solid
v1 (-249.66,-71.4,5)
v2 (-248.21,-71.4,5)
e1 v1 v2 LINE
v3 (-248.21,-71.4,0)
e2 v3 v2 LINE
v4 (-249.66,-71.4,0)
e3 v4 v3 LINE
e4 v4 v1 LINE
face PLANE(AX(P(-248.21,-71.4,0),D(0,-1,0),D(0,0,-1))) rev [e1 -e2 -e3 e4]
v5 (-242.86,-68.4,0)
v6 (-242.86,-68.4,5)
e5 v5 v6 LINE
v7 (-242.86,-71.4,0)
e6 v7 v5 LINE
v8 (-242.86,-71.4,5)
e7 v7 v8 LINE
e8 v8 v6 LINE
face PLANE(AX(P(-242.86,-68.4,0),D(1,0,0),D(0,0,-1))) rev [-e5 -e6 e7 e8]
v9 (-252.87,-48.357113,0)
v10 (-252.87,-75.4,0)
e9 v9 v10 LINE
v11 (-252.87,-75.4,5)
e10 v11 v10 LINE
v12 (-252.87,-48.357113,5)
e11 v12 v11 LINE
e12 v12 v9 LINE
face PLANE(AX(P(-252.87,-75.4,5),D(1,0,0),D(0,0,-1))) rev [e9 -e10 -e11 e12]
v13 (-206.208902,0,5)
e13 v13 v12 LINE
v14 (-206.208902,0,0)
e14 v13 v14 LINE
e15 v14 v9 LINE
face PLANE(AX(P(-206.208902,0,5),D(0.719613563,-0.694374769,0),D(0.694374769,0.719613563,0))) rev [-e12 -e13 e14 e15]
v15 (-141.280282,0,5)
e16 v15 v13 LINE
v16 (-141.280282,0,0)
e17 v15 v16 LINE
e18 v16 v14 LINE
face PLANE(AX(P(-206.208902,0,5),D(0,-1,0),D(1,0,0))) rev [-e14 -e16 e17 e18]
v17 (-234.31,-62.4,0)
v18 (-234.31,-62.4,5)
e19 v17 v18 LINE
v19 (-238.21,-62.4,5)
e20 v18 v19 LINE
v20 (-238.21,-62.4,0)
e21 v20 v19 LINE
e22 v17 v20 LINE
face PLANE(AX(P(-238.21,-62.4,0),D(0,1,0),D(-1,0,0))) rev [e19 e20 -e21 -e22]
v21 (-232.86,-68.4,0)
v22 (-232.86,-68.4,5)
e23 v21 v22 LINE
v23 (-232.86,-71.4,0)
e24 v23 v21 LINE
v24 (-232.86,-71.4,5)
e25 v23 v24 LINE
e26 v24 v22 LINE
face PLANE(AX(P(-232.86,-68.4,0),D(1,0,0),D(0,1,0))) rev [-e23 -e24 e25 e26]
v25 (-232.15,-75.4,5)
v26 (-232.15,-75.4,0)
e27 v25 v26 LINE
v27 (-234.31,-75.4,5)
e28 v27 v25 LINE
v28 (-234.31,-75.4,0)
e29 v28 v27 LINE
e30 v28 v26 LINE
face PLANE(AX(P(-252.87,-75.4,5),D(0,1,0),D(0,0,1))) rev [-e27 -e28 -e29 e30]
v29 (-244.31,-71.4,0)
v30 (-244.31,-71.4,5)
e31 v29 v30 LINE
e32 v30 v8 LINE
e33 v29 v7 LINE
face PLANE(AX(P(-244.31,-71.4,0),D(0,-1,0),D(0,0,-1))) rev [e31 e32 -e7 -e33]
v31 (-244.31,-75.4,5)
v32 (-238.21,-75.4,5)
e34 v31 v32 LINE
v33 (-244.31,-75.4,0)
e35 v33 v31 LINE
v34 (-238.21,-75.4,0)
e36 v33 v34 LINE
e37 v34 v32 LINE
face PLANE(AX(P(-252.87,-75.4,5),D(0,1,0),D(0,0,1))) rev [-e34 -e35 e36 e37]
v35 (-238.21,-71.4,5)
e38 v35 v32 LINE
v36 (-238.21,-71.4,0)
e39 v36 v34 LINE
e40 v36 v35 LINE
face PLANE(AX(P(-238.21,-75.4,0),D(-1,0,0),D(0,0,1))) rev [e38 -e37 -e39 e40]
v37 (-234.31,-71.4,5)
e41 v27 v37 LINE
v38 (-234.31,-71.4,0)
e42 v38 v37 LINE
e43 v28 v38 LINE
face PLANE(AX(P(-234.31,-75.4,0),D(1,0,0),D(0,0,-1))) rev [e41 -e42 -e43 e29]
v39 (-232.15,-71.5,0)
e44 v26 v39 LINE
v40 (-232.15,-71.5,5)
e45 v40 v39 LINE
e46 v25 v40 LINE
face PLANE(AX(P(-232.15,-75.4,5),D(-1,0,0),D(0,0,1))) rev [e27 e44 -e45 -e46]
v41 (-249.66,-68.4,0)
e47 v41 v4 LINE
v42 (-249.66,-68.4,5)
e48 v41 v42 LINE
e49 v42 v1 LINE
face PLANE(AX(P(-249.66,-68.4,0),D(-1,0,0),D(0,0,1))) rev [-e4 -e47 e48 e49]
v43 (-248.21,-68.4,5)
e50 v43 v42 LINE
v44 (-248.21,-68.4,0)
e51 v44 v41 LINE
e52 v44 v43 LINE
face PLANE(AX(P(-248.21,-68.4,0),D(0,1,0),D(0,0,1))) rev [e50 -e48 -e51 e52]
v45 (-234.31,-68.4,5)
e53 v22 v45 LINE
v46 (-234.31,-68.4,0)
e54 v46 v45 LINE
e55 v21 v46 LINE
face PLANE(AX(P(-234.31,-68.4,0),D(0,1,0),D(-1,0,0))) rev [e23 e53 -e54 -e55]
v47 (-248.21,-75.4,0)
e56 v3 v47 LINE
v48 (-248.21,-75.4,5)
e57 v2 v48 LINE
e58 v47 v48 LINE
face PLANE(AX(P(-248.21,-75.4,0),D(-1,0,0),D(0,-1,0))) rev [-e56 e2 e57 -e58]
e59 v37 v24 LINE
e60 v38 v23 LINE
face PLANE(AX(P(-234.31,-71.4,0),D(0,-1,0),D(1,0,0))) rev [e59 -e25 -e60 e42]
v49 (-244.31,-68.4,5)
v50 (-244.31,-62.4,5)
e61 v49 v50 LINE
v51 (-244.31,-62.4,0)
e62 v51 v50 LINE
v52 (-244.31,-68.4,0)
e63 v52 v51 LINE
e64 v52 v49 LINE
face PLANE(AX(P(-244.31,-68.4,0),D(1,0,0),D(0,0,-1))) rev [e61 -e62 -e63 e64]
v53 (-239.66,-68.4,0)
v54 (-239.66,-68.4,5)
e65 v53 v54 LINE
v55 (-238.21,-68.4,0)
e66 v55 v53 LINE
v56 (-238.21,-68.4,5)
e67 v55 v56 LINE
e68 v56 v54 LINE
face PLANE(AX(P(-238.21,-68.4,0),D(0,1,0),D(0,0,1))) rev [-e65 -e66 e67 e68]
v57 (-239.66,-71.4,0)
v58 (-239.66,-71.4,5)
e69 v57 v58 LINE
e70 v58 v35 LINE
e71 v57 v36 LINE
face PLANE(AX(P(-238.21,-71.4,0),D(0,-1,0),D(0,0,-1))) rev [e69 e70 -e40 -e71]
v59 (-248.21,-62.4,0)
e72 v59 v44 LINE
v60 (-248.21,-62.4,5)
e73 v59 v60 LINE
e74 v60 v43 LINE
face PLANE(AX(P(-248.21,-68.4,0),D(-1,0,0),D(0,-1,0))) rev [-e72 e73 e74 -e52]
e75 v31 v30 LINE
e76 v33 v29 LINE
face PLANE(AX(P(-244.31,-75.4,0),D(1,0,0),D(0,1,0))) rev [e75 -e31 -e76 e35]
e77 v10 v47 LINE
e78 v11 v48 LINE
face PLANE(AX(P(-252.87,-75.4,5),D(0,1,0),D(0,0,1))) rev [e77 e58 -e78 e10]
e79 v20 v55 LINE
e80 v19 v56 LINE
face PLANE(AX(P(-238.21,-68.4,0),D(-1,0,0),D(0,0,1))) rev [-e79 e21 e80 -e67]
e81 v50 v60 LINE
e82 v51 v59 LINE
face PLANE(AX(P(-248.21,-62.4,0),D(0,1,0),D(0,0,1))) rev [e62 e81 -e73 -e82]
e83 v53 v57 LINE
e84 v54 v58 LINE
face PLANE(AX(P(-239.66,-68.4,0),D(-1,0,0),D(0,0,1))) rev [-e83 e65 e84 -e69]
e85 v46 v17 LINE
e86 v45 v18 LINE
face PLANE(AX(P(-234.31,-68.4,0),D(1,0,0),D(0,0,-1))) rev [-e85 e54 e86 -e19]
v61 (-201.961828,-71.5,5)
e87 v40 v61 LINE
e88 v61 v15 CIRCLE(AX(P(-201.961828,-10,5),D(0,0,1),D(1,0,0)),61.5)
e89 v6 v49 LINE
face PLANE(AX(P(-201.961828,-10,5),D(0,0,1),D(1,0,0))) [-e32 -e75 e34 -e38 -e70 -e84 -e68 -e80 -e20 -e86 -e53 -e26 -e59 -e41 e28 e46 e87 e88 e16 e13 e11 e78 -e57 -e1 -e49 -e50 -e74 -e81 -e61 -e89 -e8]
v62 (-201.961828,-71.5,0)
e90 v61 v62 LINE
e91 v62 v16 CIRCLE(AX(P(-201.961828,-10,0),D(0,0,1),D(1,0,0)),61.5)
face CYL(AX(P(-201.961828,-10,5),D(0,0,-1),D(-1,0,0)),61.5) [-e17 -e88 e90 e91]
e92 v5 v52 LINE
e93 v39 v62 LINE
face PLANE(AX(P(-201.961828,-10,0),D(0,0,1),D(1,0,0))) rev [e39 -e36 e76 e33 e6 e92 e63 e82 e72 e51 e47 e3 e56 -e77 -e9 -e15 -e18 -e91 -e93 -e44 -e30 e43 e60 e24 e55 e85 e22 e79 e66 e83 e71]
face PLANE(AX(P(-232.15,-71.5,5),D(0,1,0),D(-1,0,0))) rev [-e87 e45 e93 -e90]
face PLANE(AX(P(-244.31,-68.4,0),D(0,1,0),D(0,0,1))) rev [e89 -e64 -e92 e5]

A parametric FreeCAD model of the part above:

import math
import FreeCAD as App
import Part
import Sketcher
from FreeCAD import Vector


def add_polygon(sketch, points):
    """Adds a closed chain of lines whose ends are joined by coincident constraints."""
    first, n = sketch.GeometryCount, len(points)
    for a, b in zip(points, points[1:] + points[:1]):
        sketch.addGeometry(Part.LineSegment(App.Vector(*a, 0), App.Vector(*b, 0)), False)
    for i in range(n):
        sketch.addConstraint(Sketcher.Constraint("Coincident", first + i, 2, first + (i + 1) % n, 1))

doc = App.newDocument("Part")
body = doc.addObject("PartDesign::Body", "Body")

# Sketch on XY plane
sketch1 = body.newObject("Sketcher::SketchObject", "Sketch")
sketch1.AttachmentSupport = (doc.getObject("XY_Plane"), [""])
sketch1.MapMode = "FlatFace"
sketch1.addGeometry([
    Part.LineSegment(Vector(-252.9, -75.4, 0), Vector(-232.2, -75.4, 0)),  # 0
    Part.LineSegment(Vector(-232.2, -75.4, 0), Vector(-232.2, -71.5, 0)),  # 1
    Part.LineSegment(Vector(-232.2, -71.5, 0), Vector(-202, -71.5, 0)),  # 2
    Part.ArcOfCircle(Part.Circle(Vector(-202, -10, 0), Vector(0, 0, 1), 61.5), math.radians(-90), math.radians(9)),  # 3
    Part.LineSegment(Vector(-141.3, 0, 0), Vector(-206.2, 0, 0)),  # 4
    Part.LineSegment(Vector(-206.2, 0, 0), Vector(-252.9, -48.4, 0)),  # 5
    Part.LineSegment(Vector(-252.9, -48.4, 0), Vector(-252.9, -75.4, 0)),  # 6
], False)
sketch1.addConstraint([
    Sketcher.Constraint("Coincident", 0, 2, 1, 1),
    Sketcher.Constraint("Coincident", 1, 2, 2, 1),
    Sketcher.Constraint("Tangent", 2, 2, 3, 1),
    Sketcher.Constraint("Coincident", 3, 2, 4, 1),
    Sketcher.Constraint("Coincident", 4, 2, 5, 1),
    Sketcher.Constraint("Coincident", 5, 2, 6, 1),
    Sketcher.Constraint("Coincident", 6, 2, 0, 1),
    Sketcher.Constraint("Horizontal", 0),
    Sketcher.Constraint("Vertical", 1),
    Sketcher.Constraint("Horizontal", 2),
    Sketcher.Constraint("Horizontal", 4),
    Sketcher.Constraint("Vertical", 6),
    Sketcher.Constraint("PointOnObject", 3, 2, -1),
    Sketcher.Constraint("Radius", 3, 61.5),
    Sketcher.Constraint("DistanceY", 1, 1, 1, 2, 3.9),
    Sketcher.Constraint("DistanceY", 3, 3, -1, 1, 10.0),
    Sketcher.Constraint("DistanceX", 0, 1, 0, 2, 20.72),
    Sketcher.Constraint("DistanceX", 0, 2, -1, 1, 232.15),
    Sketcher.Constraint("DistanceX", 4, 2, 4, 1, 64.92862),
    Sketcher.Constraint("DistanceX", 4, 2, -1, 1, 206.208902),
    Sketcher.Constraint("DistanceY", 6, 2, 6, 1, 27.042887),
])
pad1 = body.newObject("PartDesign::Pad", "Pad")
pad1.Profile = sketch1
pad1.Length = 5

# Sketch on XY plane
sketch2 = body.newObject("Sketcher::SketchObject", "Sketch001")
sketch2.AttachmentSupport = (doc.getObject("XY_Plane"), [""])
sketch2.MapMode = "FlatFace"
sketch2.AttachmentOffset = App.Placement(Vector(0, 0, 5), App.Rotation())
add_polygon(sketch2, [(-248.2, -75.4), (-244.3, -75.4), (-244.3, -71.4), (-242.9, -71.4), (-242.9, -68.4), (-244.3, -68.4), (-244.3, -62.4), (-248.2, -62.4), (-248.2, -68.4), (-249.7, -68.4), (-249.7, -71.4), (-248.2, -71.4)])  # lines 0-11
add_polygon(sketch2, [(-238.2, -75.4), (-234.3, -75.4), (-234.3, -71.4), (-232.9, -71.4), (-232.9, -68.4), (-234.3, -68.4), (-234.3, -62.4), (-238.2, -62.4), (-238.2, -68.4), (-239.7, -68.4), (-239.7, -71.4), (-238.2, -71.4)])  # lines 12-23
sketch2.addConstraint([
    Sketcher.Constraint("Horizontal", 0),
    Sketcher.Constraint("Vertical", 1),
    Sketcher.Constraint("Horizontal", 2),
    Sketcher.Constraint("Vertical", 3),
    Sketcher.Constraint("Horizontal", 4),
    Sketcher.Constraint("Vertical", 5),
    Sketcher.Constraint("Horizontal", 6),
    Sketcher.Constraint("Vertical", 7),
    Sketcher.Constraint("Horizontal", 8),
    Sketcher.Constraint("Vertical", 9),
    Sketcher.Constraint("Horizontal", 10),
    Sketcher.Constraint("Vertical", 11),
    Sketcher.Constraint("Horizontal", 12),
    Sketcher.Constraint("Vertical", 13),
    Sketcher.Constraint("Horizontal", 14),
    Sketcher.Constraint("Vertical", 15),
    Sketcher.Constraint("Horizontal", 16),
    Sketcher.Constraint("Vertical", 17),
    Sketcher.Constraint("Horizontal", 18),
    Sketcher.Constraint("Vertical", 19),
    Sketcher.Constraint("Horizontal", 20),
    Sketcher.Constraint("Vertical", 21),
    Sketcher.Constraint("Horizontal", 22),
    Sketcher.Constraint("Vertical", 23),
    Sketcher.Constraint("Horizontal", 4, 2, 7, 2),
    Sketcher.Constraint("Horizontal", 2, 2, 9, 2),
    Sketcher.Constraint("Horizontal", 11, 2, 12, 2),
    Sketcher.Constraint("Horizontal", 10, 2, 13, 2),
    Sketcher.Constraint("Horizontal", 8, 2, 15, 2),
    Sketcher.Constraint("Horizontal", 6, 2, 17, 2),
    Sketcher.Constraint("Horizontal", 16, 2, 19, 2),
    Sketcher.Constraint("Horizontal", 14, 2, 21, 2),
    Sketcher.Constraint("Vertical", 1, 2, 4, 2),
    Sketcher.Constraint("Vertical", 7, 2, 10, 2),
    Sketcher.Constraint("Vertical", 13, 2, 16, 2),
    Sketcher.Constraint("Vertical", 19, 2, 22, 2),
    Sketcher.Constraint("Equal", 4, 8),
    Sketcher.Constraint("Equal", 6, 12),
    Sketcher.Constraint("Equal", 10, 14),
    Sketcher.Constraint("Equal", 16, 20),
    Sketcher.Constraint("DistanceY", 1, 1, 1, 2, 4.0),
    Sketcher.Constraint("DistanceY", 3, 1, 3, 2, 3.0),
    Sketcher.Constraint("DistanceY", 5, 1, 5, 2, 6.0),
    Sketcher.Constraint("DistanceX", 0, 1, 0, 2, 3.9),
    Sketcher.Constraint("DistanceX", 0, 2, 12, 2, 10.0),
    Sketcher.Constraint("DistanceX", 2, 1, 2, 2, 1.45),
    Sketcher.Constraint("DistanceY", 0, 2, -1, 1, 75.4),
    Sketcher.Constraint("DistanceX", 0, 2, -1, 1, 244.31),
])
pocket1 = body.newObject("PartDesign::Pocket", "Pocket")
pocket1.Profile = sketch2
pocket1.Length = 5

doc.recompute()
